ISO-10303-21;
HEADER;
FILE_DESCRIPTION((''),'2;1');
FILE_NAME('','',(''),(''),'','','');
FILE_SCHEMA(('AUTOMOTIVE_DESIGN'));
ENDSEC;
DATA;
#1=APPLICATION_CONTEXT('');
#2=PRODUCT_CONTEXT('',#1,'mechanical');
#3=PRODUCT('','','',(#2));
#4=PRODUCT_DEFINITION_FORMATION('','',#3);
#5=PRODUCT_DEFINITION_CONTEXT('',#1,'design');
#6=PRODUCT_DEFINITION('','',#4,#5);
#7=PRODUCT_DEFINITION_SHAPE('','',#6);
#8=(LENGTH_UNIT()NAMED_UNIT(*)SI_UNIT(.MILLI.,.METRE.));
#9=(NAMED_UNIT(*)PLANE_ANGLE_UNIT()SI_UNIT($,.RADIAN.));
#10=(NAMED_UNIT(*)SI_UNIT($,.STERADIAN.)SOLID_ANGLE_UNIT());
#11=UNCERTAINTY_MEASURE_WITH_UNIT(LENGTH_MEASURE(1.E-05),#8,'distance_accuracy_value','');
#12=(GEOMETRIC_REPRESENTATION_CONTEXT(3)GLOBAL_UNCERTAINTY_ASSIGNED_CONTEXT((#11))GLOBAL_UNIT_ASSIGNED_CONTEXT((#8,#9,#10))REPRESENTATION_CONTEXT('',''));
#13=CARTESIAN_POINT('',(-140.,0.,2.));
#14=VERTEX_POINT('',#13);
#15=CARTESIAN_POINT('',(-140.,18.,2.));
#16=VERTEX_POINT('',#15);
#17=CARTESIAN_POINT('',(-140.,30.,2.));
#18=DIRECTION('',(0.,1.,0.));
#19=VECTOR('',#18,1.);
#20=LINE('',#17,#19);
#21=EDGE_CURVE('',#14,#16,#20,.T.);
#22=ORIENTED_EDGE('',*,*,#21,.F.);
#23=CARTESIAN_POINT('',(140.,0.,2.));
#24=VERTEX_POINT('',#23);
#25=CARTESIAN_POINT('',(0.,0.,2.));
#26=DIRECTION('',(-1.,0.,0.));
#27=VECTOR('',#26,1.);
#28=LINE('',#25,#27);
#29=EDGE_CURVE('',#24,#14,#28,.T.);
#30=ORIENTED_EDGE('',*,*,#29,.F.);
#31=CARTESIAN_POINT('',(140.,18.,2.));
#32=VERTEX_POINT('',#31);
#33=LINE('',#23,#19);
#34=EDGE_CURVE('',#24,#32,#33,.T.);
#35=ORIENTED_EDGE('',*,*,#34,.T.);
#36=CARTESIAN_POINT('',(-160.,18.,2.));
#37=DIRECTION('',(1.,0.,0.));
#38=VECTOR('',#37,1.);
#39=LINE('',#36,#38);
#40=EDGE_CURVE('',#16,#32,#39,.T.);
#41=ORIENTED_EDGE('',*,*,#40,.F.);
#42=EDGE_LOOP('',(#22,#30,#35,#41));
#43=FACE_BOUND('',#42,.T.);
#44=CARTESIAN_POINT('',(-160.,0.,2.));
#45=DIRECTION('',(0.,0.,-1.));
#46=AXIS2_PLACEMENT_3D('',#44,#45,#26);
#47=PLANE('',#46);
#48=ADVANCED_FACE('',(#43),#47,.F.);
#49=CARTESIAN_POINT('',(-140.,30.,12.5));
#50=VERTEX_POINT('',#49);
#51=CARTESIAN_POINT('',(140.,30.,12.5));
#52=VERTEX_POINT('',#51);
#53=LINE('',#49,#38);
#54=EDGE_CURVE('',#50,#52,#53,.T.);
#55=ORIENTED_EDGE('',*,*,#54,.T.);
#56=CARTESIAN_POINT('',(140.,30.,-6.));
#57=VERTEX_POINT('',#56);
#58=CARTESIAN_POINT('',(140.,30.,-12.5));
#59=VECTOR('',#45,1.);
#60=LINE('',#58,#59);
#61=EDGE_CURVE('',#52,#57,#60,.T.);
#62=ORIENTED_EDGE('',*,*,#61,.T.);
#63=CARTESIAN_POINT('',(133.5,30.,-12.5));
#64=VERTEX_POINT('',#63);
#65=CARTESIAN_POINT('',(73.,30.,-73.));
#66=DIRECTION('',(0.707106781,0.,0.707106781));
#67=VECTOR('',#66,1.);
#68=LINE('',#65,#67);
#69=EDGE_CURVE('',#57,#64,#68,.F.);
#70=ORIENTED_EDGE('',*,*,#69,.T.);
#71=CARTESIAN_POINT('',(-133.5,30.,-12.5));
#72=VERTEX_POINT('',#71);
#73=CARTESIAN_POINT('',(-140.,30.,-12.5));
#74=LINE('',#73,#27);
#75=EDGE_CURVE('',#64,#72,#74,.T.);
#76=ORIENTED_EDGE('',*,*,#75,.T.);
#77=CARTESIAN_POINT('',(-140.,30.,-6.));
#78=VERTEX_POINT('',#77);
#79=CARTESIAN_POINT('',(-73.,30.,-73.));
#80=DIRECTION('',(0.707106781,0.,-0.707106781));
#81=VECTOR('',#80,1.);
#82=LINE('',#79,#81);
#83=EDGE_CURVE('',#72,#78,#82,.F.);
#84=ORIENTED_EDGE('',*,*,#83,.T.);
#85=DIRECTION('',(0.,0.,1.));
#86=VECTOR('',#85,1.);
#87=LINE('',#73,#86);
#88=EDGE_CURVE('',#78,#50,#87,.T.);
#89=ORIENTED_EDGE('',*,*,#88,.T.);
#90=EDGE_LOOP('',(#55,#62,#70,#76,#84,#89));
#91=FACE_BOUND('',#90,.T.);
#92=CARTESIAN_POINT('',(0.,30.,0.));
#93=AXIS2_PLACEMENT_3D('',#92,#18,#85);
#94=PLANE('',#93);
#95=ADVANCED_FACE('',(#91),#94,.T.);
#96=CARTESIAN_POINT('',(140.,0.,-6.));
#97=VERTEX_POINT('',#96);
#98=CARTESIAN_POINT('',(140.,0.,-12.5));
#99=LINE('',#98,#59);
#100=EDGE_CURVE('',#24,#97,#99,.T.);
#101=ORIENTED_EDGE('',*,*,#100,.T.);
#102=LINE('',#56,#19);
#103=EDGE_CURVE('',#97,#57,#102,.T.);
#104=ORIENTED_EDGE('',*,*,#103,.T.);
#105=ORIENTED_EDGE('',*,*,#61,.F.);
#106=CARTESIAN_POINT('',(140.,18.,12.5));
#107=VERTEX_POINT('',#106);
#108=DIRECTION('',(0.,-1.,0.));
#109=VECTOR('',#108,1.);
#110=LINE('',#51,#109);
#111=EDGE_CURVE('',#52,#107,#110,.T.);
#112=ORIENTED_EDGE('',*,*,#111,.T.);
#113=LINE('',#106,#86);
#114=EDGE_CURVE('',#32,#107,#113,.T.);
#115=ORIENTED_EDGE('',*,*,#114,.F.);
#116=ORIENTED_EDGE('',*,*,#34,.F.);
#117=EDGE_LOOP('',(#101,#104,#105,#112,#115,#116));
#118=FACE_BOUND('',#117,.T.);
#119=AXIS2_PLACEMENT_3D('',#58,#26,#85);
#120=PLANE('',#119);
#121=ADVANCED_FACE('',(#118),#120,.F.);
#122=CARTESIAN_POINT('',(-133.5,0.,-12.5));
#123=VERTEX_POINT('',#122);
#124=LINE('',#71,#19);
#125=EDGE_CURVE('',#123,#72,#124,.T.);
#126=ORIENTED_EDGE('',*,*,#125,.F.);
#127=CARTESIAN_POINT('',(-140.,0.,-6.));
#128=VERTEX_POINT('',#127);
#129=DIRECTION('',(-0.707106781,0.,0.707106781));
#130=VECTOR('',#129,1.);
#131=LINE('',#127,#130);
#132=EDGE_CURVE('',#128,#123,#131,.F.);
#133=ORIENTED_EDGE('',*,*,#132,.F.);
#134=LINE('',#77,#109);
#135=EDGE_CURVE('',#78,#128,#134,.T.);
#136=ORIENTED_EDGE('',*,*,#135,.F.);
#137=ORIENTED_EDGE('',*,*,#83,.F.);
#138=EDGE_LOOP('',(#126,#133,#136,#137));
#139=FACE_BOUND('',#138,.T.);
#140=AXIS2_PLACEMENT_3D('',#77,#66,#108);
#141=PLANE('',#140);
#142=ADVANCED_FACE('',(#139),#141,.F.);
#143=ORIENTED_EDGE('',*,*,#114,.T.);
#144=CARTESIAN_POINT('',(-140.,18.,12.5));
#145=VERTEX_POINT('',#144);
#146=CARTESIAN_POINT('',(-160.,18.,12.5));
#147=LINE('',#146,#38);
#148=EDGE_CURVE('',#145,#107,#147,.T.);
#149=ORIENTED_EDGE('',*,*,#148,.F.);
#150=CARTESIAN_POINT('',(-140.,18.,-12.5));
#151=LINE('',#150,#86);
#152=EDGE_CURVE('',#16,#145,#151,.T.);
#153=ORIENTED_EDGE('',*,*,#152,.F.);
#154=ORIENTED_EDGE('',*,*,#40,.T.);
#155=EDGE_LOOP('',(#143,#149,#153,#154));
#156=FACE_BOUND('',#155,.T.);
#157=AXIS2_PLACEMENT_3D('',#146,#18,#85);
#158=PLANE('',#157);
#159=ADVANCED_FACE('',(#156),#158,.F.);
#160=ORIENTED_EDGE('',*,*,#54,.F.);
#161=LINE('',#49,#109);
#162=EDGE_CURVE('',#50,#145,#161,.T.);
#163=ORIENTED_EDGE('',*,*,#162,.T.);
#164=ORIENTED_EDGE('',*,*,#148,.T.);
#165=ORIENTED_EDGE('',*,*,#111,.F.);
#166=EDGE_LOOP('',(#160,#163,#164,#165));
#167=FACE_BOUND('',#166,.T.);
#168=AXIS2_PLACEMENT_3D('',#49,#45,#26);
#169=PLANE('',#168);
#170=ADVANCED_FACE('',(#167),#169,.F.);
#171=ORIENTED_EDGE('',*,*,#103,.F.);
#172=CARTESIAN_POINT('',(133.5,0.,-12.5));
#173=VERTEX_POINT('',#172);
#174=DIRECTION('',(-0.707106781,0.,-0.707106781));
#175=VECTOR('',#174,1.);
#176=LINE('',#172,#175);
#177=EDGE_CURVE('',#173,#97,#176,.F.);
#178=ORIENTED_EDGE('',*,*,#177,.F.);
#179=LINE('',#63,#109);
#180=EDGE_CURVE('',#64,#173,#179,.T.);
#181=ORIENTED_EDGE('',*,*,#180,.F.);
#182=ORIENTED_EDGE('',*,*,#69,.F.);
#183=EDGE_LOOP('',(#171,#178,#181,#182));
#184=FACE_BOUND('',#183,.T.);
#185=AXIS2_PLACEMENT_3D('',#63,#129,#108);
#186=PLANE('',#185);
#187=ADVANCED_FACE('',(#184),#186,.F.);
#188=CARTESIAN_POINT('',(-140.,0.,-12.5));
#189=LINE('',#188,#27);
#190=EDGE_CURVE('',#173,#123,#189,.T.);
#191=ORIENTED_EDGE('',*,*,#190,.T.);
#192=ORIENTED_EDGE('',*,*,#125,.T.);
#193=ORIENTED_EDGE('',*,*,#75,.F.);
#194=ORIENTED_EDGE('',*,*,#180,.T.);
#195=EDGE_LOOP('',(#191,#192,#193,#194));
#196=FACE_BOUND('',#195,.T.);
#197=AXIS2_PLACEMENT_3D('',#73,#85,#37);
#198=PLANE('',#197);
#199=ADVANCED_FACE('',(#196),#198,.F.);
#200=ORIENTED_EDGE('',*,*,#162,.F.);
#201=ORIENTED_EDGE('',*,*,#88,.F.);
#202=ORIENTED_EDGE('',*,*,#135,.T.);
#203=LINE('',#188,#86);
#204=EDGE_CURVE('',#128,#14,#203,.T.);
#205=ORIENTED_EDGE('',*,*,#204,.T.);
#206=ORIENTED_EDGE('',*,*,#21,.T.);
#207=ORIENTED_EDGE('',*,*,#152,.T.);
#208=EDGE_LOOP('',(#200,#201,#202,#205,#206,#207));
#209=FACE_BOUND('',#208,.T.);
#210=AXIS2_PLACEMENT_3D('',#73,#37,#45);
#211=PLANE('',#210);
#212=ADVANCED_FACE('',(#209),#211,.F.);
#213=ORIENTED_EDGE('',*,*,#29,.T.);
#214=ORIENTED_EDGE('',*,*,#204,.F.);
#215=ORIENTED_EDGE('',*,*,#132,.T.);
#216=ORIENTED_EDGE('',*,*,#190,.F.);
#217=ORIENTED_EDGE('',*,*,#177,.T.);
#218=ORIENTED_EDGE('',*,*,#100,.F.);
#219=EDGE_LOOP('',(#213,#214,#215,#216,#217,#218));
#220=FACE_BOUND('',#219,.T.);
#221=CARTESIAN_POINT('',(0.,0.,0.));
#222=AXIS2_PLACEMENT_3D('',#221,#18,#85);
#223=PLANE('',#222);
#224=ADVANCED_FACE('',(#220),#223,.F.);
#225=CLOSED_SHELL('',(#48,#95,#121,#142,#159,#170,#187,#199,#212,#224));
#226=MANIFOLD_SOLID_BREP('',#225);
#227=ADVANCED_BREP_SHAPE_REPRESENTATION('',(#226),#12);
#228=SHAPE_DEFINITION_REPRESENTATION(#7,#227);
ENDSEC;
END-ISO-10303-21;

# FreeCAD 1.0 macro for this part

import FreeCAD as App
import Part
import Sketcher

V = App.Vector
Q = App.Units.Quantity


def edges_at(feature, points):
    """Names of the edges that pass closest to the given points."""
    edges = feature.Shape.Edges
    near = lambda p: min(range(len(edges)), key=lambda i: edges[i].distToShape(Part.Vertex(*p))[0])
    return sorted({f"Edge{near(p) + 1}" for p in points})


def add_polygon(sketch, points):
    """Adds a closed chain of lines whose ends are joined by coincident constraints."""
    first, n = sketch.GeometryCount, len(points)
    for a, b in zip(points, points[1:] + points[:1]):
        sketch.addGeometry(Part.LineSegment(App.Vector(*a, 0), App.Vector(*b, 0)), False)
    for i in range(n):
        sketch.addConstraint(Sketcher.Constraint("Coincident", first + i, 2, first + (i + 1) % n, 1))

doc = App.newDocument("Part")
body = doc.addObject("PartDesign::Body", "Body")

# Sketch on XZ plane
sketch1 = doc.addObject("Sketcher::SketchObject", "Sketch")
body.addObject(sketch1)
sketch1.AttachmentSupport = (doc.XZ_Plane, [""])
sketch1.MapMode = "FlatFace"
add_polygon(sketch1, [(-140, -12.5), (-140, 12.5), (140, 12.5), (140, -12.5)])  # lines 0-3
sketch1.addConstraint(Sketcher.Constraint("Vertical", 0))
sketch1.addConstraint(Sketcher.Constraint("Horizontal", 1))
sketch1.addConstraint(Sketcher.Constraint("Vertical", 2))
sketch1.addConstraint(Sketcher.Constraint("Horizontal", 3))
sketch1.addConstraint(Sketcher.Constraint("Symmetric", 0, 2, 2, 2, -1, 1))
sketch1.addConstraint(Sketcher.Constraint("DistanceX", 1, 1, 1, 2, Q("280 mm")))
sketch1.addConstraint(Sketcher.Constraint("DistanceY", 0, 1, 0, 2, Q("25 mm")))
pad1 = doc.addObject("PartDesign::Pad", "Pad")
body.addObject(pad1)
pad1.Profile = sketch1
pad1.Length = 30
pad1.Reversed = True

# Sketch on YZ plane
sketch2 = doc.addObject("Sketcher::SketchObject", "Sketch001")
body.addObject(sketch2)
sketch2.AttachmentSupport = (doc.YZ_Plane, [""])
sketch2.MapMode = "FlatFace"
sketch2.AttachmentOffset = App.Placement(V(0, 0, 140), App.Rotation())
add_polygon(sketch2, [(18, 12.5), (0, 12.5), (0, 2), (18, 2)])  # lines 0-3
sketch2.addConstraint(Sketcher.Constraint("Horizontal", 0))
sketch2.addConstraint(Sketcher.Constraint("Vertical", 1))
sketch2.addConstraint(Sketcher.Constraint("Horizontal", 2))
sketch2.addConstraint(Sketcher.Constraint("Vertical", 3))
sketch2.addConstraint(Sketcher.Constraint("PointOnObject", 0, 2, -2))
sketch2.addConstraint(Sketcher.Constraint("DistanceX", 0, 2, 0, 1, Q("18 mm")))
sketch2.addConstraint(Sketcher.Constraint("DistanceY", 1, 2, 1, 1, Q("10.5 mm")))
sketch2.addConstraint(Sketcher.Constraint("DistanceY", -1, 1, 1, 2, Q("2 mm")))
pocket1 = doc.addObject("PartDesign::Pocket", "Pocket")
body.addObject(pocket1)
pocket1.Profile = sketch2
pocket1.Length = 300
doc.recompute()

chamfer = doc.addObject("PartDesign::Chamfer", "Chamfer")
body.addObject(chamfer)
chamfer.Base = (pocket1, edges_at(pocket1, [(-140, 15, -12.5), (140, 15, -12.5)]))
chamfer.Size = 6.5

doc.recompute()
